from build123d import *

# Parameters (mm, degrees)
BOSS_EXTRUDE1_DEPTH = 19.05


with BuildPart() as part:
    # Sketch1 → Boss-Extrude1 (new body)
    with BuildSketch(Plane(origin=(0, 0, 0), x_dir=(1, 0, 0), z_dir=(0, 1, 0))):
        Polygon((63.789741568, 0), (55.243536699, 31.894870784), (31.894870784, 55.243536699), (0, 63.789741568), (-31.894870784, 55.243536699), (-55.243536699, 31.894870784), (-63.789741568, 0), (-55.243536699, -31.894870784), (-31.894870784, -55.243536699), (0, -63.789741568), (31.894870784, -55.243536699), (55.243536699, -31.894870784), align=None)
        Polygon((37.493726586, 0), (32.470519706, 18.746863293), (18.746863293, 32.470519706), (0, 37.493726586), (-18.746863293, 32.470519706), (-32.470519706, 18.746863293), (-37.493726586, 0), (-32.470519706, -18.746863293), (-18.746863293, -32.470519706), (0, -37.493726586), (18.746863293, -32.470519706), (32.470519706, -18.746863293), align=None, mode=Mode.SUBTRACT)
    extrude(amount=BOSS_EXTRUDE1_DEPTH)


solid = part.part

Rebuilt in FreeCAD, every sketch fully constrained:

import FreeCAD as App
import Part
import Sketcher

V = App.Vector
Q = App.Units.Quantity


def add_polygon(sketch, points):
    """Adds a closed chain of lines whose ends are joined by coincident constraints."""
    first, n = sketch.GeometryCount, len(points)
    for a, b in zip(points, points[1:] + points[:1]):
        sketch.addGeometry(Part.LineSegment(App.Vector(*a, 0), App.Vector(*b, 0)), False)
    for i in range(n):
        sketch.addConstraint(Sketcher.Constraint("Coincident", first + i, 2, first + (i + 1) % n, 1))

doc = App.newDocument("Part")
body = doc.addObject("PartDesign::Body", "Body")

sketch1 = body.newObject("Sketcher::SketchObject", "Sketch")
sketch1.AttachmentSupport = (doc.getObject("XZ_Plane"), [""])
sketch1.MapMode = "FlatFace"
add_polygon(sketch1, [(63.789742, 0), (55.243537, -31.894871), (31.894871, -55.243537), (0, -63.789742), (-31.894871, -55.243537), (-55.243537, -31.894871), (-63.789742, 0), (-55.243537, 31.894871), (-31.894871, 55.243537), (0, 63.789742), (31.894871, 55.243537), (55.243537, 31.894871)])
add_polygon(sketch1, [(32.47052, -18.746863), (37.493727, 0), (32.47052, 18.746863), (18.746863, 32.47052), (0, 37.493727), (-18.746863, 32.47052), (-32.47052, 18.746863), (-37.493727, 0), (-32.47052, -18.746863), (-18.746863, -32.47052), (0, -37.493727), (18.746863, -32.47052)])
sketch1.addConstraint([
    Sketcher.Constraint("Symmetric", 0, 2, 6, 2, -1, 1),
    Sketcher.Constraint("Symmetric", 1, 2, 7, 2, -1, 1),
    Sketcher.Constraint("Symmetric", 2, 2, 8, 2, -1, 1),
    Sketcher.Constraint("Symmetric", 3, 2, 9, 2, -1, 1),
    Sketcher.Constraint("Symmetric", 4, 2, 10, 2, -1, 1),
    Sketcher.Constraint("Symmetric", 5, 2, 11, 2, -1, 1),
    Sketcher.Constraint("Symmetric", 12, 2, 18, 2, -1, 1),
    Sketcher.Constraint("Symmetric", 13, 2, 19, 2, -1, 1),
    Sketcher.Constraint("Symmetric", 14, 2, 20, 2, -1, 1),
    Sketcher.Constraint("Symmetric", 15, 2, 21, 2, -1, 1),
    Sketcher.Constraint("Symmetric", 16, 2, 22, 2, -1, 1),
    Sketcher.Constraint("Symmetric", 17, 2, 23, 2, -1, 1),
    Sketcher.Constraint("Symmetric", 1, 2, 3, 2, -2),
    Sketcher.Constraint("Symmetric", 0, 2, 4, 2, -2),
    Sketcher.Constraint("Symmetric", 14, 2, 16, 2, -2),
    Sketcher.Constraint("Symmetric", 13, 2, 17, 2, -2),
    Sketcher.Constraint("PointOnObject", 2, 2, -2),
    Sketcher.Constraint("PointOnObject", 5, 2, -1),
    Sketcher.Constraint("PointOnObject", 12, 2, -1),
    Sketcher.Constraint("PointOnObject", 15, 2, -2),
    Sketcher.Constraint("Perpendicular", 0, 3),
    Sketcher.Constraint("Perpendicular", 1, 4),
    Sketcher.Constraint("Perpendicular", 9, 12),
    Sketcher.Constraint("Parallel", 10, 14),
    Sketcher.Constraint("Perpendicular", 12, 15),
    Sketcher.Constraint("Equal", 0, 1),
    Sketcher.Constraint("Equal", 1, 2),
    Sketcher.Constraint("Equal", 13, 14),
    Sketcher.Constraint("Equal", 14, 15),
    Sketcher.Constraint("Angle", 0, Q("-105 deg")),
    Sketcher.Constraint("Distance", 0, Q("1.3 in")),
    Sketcher.Constraint("Distance", 12, 19.408181),
])
pad1 = body.newObject("PartDesign::Pad", "Pad")
pad1.Profile = sketch1
pad1.Length = Q("0.75 in")
pad1.Reversed = True

doc.recompute()
